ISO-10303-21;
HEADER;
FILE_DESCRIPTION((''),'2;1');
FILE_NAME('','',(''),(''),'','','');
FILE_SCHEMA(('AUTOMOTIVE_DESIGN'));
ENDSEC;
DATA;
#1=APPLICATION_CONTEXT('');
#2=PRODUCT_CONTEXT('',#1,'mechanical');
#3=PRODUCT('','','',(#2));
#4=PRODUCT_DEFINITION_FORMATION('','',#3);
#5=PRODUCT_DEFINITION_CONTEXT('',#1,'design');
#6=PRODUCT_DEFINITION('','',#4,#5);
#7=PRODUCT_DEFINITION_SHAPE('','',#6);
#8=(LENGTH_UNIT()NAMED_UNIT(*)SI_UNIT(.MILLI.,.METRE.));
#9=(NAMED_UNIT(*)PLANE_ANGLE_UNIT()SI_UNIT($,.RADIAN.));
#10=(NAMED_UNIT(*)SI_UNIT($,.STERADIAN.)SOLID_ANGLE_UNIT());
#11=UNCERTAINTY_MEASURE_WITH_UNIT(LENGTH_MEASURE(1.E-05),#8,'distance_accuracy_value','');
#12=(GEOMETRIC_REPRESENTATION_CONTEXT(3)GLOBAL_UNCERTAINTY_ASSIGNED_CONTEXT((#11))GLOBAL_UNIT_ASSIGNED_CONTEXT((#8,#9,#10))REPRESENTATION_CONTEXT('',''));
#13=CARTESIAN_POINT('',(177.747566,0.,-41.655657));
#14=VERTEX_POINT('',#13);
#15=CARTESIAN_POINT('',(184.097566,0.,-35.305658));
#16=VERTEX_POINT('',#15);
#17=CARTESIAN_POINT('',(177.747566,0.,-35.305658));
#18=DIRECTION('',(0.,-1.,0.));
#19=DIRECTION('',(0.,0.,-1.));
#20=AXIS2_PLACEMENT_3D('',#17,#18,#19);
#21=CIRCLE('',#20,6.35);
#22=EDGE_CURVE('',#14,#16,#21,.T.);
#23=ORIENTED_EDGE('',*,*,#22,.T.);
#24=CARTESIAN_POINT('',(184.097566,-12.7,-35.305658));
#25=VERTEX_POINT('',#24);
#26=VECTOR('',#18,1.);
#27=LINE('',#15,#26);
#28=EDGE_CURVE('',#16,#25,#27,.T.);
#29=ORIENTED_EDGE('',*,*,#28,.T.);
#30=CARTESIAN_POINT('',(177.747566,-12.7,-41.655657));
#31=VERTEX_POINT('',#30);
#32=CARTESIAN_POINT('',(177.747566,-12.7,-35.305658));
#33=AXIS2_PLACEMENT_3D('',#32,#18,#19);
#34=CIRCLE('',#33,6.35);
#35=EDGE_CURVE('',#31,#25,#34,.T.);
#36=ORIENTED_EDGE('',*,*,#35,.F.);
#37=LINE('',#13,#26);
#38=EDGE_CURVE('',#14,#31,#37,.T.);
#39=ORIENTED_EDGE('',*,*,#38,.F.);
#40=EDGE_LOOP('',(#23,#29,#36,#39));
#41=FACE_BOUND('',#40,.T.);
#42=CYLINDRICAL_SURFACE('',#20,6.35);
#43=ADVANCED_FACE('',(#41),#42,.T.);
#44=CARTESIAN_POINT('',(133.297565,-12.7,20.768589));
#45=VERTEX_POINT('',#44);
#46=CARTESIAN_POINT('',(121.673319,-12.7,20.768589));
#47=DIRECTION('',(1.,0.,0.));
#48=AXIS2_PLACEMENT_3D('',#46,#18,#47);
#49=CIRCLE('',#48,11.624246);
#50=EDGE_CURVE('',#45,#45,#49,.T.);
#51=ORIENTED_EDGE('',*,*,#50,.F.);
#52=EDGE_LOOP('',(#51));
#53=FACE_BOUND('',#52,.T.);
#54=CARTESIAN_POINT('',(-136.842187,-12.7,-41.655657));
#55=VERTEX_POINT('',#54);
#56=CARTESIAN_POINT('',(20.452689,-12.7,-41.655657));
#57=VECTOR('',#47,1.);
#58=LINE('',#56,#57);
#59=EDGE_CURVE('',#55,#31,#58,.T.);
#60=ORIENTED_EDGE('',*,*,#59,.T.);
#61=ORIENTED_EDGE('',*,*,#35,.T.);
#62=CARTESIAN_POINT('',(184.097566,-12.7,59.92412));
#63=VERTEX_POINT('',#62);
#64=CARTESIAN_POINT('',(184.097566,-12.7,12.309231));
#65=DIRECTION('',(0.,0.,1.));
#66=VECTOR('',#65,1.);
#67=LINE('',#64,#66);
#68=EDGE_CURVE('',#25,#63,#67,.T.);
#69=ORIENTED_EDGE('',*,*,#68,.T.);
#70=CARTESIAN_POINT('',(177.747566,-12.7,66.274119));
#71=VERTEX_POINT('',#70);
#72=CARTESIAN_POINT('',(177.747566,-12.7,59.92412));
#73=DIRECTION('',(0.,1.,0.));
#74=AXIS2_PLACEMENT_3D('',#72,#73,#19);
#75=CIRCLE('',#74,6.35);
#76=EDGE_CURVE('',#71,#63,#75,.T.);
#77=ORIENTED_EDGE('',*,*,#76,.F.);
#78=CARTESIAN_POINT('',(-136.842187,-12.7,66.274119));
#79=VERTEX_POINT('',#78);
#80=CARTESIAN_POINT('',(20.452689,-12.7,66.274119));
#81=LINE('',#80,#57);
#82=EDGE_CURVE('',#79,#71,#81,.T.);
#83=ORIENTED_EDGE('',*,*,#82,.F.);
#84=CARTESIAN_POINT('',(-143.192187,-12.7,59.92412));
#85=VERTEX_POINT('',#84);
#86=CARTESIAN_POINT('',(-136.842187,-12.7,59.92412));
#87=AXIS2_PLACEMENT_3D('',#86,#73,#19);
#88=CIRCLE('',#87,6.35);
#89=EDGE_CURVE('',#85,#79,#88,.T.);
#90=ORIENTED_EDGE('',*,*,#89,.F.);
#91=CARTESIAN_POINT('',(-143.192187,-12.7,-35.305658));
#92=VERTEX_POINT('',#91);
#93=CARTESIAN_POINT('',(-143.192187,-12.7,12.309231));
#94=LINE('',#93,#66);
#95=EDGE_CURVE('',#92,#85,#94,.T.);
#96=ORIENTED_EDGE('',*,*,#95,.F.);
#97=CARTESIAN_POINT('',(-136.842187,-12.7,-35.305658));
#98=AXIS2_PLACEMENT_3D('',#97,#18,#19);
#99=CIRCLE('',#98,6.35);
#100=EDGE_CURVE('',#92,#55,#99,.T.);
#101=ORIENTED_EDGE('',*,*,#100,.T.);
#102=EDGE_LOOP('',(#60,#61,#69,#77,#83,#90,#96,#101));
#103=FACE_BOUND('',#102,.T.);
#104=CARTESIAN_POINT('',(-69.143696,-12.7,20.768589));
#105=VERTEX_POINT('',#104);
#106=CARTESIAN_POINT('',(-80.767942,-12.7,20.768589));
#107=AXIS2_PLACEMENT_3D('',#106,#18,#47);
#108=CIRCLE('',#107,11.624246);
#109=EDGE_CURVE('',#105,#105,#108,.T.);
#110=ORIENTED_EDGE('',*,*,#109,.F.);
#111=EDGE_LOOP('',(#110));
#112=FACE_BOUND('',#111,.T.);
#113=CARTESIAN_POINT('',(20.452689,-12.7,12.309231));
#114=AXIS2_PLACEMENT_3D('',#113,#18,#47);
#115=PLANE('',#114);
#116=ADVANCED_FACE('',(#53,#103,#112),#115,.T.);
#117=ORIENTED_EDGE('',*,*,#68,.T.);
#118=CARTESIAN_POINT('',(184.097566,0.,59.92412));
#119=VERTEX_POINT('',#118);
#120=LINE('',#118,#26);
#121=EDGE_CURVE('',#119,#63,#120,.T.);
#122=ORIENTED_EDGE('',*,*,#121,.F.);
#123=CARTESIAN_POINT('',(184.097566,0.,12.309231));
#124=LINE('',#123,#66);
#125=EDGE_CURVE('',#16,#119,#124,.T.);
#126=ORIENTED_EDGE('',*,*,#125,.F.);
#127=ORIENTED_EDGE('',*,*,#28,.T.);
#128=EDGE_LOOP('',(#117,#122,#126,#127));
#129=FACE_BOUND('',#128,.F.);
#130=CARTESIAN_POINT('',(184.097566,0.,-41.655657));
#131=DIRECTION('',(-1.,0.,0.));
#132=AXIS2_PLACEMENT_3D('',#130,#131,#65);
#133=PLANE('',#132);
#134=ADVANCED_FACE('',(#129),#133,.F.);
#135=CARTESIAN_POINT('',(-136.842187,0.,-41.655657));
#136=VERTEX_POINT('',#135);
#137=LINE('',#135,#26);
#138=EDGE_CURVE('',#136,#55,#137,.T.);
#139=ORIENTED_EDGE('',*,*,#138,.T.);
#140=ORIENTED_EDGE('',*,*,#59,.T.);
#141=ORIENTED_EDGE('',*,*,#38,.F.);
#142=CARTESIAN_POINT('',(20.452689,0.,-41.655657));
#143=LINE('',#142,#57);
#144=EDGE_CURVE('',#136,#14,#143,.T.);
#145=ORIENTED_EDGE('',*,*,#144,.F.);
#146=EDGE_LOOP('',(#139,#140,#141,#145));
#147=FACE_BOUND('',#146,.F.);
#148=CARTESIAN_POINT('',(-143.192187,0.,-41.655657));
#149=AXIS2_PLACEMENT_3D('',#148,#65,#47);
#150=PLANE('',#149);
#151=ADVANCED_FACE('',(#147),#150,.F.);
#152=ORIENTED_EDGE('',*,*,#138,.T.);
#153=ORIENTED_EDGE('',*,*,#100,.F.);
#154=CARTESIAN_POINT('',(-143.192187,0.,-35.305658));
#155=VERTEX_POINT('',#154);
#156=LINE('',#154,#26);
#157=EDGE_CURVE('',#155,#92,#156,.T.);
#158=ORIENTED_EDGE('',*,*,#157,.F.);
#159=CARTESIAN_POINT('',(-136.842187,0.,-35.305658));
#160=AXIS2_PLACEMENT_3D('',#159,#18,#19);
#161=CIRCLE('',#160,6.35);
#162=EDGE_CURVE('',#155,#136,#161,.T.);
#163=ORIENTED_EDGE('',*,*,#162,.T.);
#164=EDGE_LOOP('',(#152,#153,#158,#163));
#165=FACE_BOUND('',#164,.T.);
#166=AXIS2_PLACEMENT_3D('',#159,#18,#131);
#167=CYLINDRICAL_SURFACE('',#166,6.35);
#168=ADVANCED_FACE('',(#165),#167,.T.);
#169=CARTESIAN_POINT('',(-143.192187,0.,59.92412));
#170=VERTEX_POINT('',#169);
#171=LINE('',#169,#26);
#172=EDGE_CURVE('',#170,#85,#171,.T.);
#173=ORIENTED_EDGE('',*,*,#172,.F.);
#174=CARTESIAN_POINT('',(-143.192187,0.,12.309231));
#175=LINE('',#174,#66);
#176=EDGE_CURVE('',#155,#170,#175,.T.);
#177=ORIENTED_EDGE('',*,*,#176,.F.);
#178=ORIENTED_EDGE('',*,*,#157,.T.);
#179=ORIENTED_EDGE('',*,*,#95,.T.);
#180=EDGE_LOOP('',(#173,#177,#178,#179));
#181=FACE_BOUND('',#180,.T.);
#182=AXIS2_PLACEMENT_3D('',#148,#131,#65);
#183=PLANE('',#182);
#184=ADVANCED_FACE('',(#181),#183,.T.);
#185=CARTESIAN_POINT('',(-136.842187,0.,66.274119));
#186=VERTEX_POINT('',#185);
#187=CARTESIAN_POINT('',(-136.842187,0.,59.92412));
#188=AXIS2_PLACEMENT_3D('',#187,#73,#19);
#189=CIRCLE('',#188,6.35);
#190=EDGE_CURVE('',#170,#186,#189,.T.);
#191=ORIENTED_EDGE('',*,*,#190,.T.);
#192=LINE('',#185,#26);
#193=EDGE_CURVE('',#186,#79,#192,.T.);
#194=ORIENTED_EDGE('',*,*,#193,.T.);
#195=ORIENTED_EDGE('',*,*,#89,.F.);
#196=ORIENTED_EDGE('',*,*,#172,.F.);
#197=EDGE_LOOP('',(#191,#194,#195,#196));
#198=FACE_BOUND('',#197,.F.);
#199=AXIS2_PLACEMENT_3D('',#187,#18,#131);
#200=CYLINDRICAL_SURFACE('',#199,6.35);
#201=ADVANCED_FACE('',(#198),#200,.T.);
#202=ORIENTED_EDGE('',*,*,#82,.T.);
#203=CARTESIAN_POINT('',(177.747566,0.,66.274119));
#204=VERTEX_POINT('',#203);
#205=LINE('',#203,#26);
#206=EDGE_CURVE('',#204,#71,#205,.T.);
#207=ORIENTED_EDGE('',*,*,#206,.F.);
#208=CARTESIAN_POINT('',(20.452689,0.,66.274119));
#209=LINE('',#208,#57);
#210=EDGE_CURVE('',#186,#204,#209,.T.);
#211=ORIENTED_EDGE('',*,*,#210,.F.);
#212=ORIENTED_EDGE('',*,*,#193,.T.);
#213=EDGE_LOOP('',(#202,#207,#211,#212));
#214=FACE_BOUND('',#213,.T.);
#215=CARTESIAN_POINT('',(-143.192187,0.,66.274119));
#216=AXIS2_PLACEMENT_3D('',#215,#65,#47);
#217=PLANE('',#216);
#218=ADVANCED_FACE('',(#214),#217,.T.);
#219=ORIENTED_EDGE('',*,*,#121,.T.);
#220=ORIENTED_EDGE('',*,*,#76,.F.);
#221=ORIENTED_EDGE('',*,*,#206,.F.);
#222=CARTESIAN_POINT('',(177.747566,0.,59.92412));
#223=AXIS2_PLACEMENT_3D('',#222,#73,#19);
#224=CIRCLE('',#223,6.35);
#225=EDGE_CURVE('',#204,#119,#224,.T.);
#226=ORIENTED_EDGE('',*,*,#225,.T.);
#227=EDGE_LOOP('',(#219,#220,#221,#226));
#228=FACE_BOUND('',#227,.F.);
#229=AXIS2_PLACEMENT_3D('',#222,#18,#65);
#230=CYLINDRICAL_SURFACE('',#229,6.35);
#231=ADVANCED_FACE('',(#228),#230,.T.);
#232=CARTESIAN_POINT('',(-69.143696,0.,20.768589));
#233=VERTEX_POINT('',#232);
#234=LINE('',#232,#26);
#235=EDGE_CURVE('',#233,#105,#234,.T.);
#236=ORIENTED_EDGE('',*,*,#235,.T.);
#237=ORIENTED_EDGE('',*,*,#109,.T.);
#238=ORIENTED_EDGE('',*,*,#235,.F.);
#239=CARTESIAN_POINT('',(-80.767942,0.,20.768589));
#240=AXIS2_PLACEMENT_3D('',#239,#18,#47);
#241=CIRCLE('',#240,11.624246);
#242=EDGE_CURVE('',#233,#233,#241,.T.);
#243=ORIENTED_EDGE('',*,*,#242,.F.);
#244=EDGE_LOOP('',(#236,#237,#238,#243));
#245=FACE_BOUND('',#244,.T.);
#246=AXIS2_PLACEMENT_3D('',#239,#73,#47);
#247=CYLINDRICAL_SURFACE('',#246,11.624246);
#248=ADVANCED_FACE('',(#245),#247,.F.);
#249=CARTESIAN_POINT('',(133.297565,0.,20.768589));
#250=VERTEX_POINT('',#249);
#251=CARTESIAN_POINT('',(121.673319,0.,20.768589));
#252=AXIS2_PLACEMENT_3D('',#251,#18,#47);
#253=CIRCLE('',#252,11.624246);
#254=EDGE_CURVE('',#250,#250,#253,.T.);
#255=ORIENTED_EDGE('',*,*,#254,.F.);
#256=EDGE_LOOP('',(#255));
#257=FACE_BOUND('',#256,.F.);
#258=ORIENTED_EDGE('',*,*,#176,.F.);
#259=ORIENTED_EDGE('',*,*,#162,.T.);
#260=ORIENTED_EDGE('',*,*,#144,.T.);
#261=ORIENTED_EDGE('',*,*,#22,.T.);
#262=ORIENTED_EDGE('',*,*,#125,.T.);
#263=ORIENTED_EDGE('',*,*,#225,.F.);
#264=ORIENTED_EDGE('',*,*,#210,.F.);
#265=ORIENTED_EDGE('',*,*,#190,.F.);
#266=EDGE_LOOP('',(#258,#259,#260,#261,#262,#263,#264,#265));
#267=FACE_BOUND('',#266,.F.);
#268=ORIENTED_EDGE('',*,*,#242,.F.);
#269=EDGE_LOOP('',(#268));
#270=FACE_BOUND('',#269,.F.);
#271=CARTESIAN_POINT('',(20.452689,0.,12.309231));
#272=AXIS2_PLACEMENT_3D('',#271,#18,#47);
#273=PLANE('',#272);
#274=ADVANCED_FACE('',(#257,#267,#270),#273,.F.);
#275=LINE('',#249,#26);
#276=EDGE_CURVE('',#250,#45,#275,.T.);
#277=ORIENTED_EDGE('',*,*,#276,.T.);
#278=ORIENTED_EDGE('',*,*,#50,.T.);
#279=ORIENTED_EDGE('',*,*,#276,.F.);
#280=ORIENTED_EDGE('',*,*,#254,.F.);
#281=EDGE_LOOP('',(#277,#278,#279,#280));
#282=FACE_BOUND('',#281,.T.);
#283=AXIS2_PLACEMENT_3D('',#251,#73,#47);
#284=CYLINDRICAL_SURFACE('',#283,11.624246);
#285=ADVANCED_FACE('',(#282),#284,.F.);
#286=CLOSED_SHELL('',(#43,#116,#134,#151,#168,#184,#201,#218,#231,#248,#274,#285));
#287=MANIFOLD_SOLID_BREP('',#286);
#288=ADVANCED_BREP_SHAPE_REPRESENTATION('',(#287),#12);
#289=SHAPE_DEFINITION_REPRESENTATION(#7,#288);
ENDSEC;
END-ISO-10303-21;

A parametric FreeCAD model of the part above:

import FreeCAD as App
import Part
import Sketcher

V = App.Vector
Q = App.Units.Quantity


def edges_at(feature, points):
    """Names of the edges that pass closest to the given points."""
    edges = feature.Shape.Edges
    near = lambda p: min(range(len(edges)), key=lambda i: edges[i].distToShape(Part.Vertex(*p))[0])
    return sorted({f"Edge{near(p) + 1}" for p in points})

doc = App.newDocument("Part")
body = doc.addObject("PartDesign::Body", "Body")

# Sketch on XZ plane
sketch1 = body.newObject("Sketcher::SketchObject", "Sketch")
sketch1.AttachmentSupport = (doc.getObject("XZ_Plane"), [""])
sketch1.MapMode = "FlatFace"
sketch1.addGeometry([
    Part.LineSegment(V(-143, 66, 0), V(-143, -42, 0)),  # 0
    Part.LineSegment(V(-143, -42, 0), V(184, -42, 0)),  # 1
    Part.LineSegment(V(184, -42, 0), V(184, 66, 0)),  # 2
    Part.LineSegment(V(184, 66, 0), V(-143, 66, 0)),  # 3
    Part.Circle(V(-81, 21, 0), V(0, 0, 1), 12),  # 4
    Part.Circle(V(122, 21, 0), V(0, 0, 1), 12),  # 5
], False)
sketch1.addConstraint([
    Sketcher.Constraint("Coincident", 0, 2, 1, 1),
    Sketcher.Constraint("Coincident", 1, 2, 2, 1),
    Sketcher.Constraint("Coincident", 2, 2, 3, 1),
    Sketcher.Constraint("Coincident", 3, 2, 0, 1),
    Sketcher.Constraint("Vertical", 0),
    Sketcher.Constraint("Horizontal", 1),
    Sketcher.Constraint("Vertical", 2),
    Sketcher.Constraint("Horizontal", 3),
    Sketcher.Constraint("Equal", 4, 5),
    Sketcher.Constraint("Horizontal", 4, 3, 5, 3),
    Sketcher.Constraint("Diameter", 4, Q("23.248492 mm")),
    Sketcher.Constraint("DistanceX", 1, 1, 1, 2, Q("327.289753 mm")),
    Sketcher.Constraint("DistanceY", 0, 2, 0, 1, Q("107.929777 mm")),
    Sketcher.Constraint("DistanceY", -1, 1, 4, 3, Q("20.768589 mm")),
    Sketcher.Constraint("DistanceX", -1, 1, 5, 3, Q("121.673319 mm")),
    Sketcher.Constraint("DistanceY", -1, 1, 2, 2, Q("66.274119 mm")),
    Sketcher.Constraint("DistanceX", 4, 3, 5, 3, Q("202.441261 mm")),
    Sketcher.Constraint("DistanceX", 0, 2, -1, 1, Q("143.192187 mm")),
])
pad1 = body.newObject("PartDesign::Pad", "Pad")
pad1.Profile = sketch1
pad1.Length = Q("0.5 in")
doc.recompute()

fillet = body.newObject("PartDesign::Fillet", "Fillet")
fillet.Base = (pad1, edges_at(pad1, [
    (-143.192, -6.35, 66.274),
    (-143.192, -6.35, -41.656),
    (184.098, -6.35, -41.656),
    (184.098, -6.35, 66.274),
]))
fillet.Radius = Q("0.25 in")

doc.recompute()
